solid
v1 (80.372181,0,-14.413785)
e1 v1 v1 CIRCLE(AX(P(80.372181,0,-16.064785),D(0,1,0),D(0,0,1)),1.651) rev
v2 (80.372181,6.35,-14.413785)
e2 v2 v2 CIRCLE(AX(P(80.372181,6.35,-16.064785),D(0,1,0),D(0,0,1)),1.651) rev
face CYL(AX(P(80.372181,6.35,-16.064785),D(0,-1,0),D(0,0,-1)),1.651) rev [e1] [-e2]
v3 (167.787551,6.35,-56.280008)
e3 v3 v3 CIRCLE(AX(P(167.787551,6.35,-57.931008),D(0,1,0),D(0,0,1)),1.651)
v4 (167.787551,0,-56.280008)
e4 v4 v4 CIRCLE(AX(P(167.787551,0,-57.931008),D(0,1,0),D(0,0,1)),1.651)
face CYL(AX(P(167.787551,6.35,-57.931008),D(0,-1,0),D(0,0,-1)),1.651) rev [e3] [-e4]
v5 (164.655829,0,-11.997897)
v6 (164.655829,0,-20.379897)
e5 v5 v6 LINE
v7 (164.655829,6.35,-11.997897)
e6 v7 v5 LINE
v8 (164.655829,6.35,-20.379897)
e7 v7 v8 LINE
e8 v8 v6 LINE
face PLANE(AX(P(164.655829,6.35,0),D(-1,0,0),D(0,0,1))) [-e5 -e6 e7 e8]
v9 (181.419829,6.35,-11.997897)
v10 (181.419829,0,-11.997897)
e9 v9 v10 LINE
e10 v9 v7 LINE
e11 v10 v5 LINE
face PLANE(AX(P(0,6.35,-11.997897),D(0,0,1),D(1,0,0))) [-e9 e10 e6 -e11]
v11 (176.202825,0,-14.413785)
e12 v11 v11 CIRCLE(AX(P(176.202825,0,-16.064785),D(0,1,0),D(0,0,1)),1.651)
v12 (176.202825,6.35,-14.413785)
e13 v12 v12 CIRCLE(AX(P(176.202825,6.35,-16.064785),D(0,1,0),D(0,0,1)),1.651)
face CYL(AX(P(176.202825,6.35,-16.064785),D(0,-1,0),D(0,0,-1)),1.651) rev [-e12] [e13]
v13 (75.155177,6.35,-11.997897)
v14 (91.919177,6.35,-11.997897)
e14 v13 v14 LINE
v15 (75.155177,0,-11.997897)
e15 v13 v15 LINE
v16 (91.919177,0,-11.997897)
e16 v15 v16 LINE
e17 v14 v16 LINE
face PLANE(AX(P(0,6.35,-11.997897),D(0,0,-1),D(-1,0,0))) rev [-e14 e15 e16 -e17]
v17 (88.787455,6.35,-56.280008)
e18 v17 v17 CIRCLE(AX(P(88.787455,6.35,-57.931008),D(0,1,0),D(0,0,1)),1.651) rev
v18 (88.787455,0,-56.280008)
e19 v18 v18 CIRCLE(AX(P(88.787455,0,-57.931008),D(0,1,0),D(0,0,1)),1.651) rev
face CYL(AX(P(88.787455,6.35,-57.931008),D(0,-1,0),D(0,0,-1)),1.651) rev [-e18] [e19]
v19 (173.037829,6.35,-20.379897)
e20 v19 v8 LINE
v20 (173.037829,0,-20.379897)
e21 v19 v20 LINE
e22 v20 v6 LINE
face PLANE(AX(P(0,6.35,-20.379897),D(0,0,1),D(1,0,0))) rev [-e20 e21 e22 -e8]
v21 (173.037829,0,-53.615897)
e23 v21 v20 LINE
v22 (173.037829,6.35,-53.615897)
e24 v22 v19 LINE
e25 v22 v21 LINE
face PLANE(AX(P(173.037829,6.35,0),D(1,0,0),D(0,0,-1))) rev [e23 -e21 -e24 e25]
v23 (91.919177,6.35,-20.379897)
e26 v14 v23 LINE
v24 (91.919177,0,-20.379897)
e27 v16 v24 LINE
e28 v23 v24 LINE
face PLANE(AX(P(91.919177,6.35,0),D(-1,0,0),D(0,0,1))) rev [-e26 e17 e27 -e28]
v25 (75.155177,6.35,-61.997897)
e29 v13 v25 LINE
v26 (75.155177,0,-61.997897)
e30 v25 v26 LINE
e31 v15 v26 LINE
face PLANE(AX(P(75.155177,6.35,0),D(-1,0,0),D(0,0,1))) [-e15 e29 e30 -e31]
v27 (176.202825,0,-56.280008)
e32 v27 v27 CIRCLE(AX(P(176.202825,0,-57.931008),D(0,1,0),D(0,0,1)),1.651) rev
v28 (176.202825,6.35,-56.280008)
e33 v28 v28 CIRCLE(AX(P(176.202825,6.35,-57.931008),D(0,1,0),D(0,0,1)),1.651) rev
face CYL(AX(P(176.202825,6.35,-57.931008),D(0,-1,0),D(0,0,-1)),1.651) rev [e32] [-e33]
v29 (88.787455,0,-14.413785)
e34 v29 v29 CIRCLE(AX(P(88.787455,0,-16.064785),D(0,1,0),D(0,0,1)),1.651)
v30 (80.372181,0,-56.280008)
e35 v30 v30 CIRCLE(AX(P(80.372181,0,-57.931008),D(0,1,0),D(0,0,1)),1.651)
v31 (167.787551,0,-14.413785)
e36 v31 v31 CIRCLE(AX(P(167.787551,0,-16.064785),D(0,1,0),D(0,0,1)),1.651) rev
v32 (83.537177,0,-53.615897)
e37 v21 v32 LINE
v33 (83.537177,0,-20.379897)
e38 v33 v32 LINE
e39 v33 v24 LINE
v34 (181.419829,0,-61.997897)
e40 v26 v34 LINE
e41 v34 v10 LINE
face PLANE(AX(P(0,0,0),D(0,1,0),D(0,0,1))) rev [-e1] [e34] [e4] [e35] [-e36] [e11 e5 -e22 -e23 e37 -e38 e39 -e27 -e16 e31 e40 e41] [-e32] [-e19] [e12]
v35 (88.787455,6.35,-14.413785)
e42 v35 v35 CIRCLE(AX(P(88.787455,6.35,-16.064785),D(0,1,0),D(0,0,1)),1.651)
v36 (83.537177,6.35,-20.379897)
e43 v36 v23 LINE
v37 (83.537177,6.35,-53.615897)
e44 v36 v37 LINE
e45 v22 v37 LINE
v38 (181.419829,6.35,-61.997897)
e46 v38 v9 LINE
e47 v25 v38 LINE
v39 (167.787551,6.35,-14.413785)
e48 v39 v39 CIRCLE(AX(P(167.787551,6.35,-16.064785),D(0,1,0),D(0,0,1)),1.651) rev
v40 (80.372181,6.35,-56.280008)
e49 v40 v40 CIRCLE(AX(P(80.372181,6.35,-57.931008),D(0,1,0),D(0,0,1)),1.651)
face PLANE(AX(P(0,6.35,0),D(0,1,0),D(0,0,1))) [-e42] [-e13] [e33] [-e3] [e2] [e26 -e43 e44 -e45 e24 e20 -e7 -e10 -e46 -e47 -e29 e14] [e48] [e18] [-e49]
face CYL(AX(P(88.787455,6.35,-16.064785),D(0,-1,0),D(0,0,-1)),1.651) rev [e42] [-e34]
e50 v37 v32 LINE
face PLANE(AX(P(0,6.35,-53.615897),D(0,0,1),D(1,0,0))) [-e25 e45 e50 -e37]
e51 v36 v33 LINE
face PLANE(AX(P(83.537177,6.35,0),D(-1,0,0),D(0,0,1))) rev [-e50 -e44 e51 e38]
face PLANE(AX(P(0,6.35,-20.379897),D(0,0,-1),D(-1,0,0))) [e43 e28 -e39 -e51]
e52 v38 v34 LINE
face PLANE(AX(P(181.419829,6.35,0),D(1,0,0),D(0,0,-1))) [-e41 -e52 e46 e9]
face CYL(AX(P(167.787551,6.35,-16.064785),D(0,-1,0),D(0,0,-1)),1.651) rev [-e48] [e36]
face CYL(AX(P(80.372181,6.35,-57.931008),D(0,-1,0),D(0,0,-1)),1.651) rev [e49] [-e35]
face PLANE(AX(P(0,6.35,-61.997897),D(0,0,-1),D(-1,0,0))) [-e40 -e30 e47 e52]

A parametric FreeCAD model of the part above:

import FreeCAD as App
import Part
import Sketcher
from FreeCAD import Vector
Q = App.Units.Quantity


def add_polygon(sketch, points):
    """Adds a closed chain of lines whose ends are joined by coincident constraints."""
    first, n = sketch.GeometryCount, len(points)
    for a, b in zip(points, points[1:] + points[:1]):
        sketch.addGeometry(Part.LineSegment(App.Vector(*a, 0), App.Vector(*b, 0)), False)
    for i in range(n):
        sketch.addConstraint(Sketcher.Constraint("Coincident", first + i, 2, first + (i + 1) % n, 1))

doc = App.newDocument("Part")
params = doc.addObject("Spreadsheet::Sheet", "Params")
for row, (alias, value) in enumerate([
    ("sketch1_diameter", "0.13 in"),
    ("sketch1_width", "0.66 in"),
    ("sketch1_width2", "0.33 in"),
    ("pad1_length", "0.25 in"),
], start=1):
    params.set(f"A{row}", alias)
    params.set(f"B{row}", "=" + value)
    params.setAlias(f"B{row}", alias)

body = doc.addObject("PartDesign::Body", "Body")

# Sketch on XZ plane
sketch1 = body.newObject("Sketcher::SketchObject", "Sketch")
sketch1.AttachmentSupport = (doc.getObject("XZ_Plane"), [""])
sketch1.MapMode = "FlatFace"
add_polygon(sketch1, [(75.2, -62), (75.2, -12), (91.9, -12), (91.9, -20.4), (83.5, -20.4), (83.5, -53.6), (173, -53.6), (173, -20.4), (164.7, -20.4), (164.7, -12), (181.4, -12), (181.4, -62)])  # lines 0-11
sketch1.addGeometry(Part.Circle(Vector(80.4, -16.1, 0), Vector(0, 0, 1), 1.7), False)  # 12
sketch1.addGeometry(Part.Circle(Vector(88.8, -16.1, 0), Vector(0, 0, 1), 1.7), False)  # 13
sketch1.addGeometry(Part.Circle(Vector(167.8, -16.1, 0), Vector(0, 0, 1), 1.7), False)  # 14
sketch1.addGeometry(Part.Circle(Vector(176.2, -16.1, 0), Vector(0, 0, 1), 1.7), False)  # 15
sketch1.addGeometry(Part.Circle(Vector(80.4, -57.9, 0), Vector(0, 0, 1), 1.7), False)  # 16
sketch1.addGeometry(Part.Circle(Vector(88.8, -57.9, 0), Vector(0, 0, 1), 1.7), False)  # 17
sketch1.addGeometry(Part.Circle(Vector(167.8, -57.9, 0), Vector(0, 0, 1), 1.7), False)  # 18
sketch1.addGeometry(Part.Circle(Vector(176.2, -57.9, 0), Vector(0, 0, 1), 1.7), False)  # 19
sketch1.addConstraint([
    Sketcher.Constraint("Vertical", 0),
    Sketcher.Constraint("Horizontal", 1),
    Sketcher.Constraint("Vertical", 2),
    Sketcher.Constraint("Horizontal", 3),
    Sketcher.Constraint("Vertical", 4),
    Sketcher.Constraint("Horizontal", 5),
    Sketcher.Constraint("Vertical", 6),
    Sketcher.Constraint("Horizontal", 7),
    Sketcher.Constraint("Vertical", 8),
    Sketcher.Constraint("Horizontal", 9),
    Sketcher.Constraint("Vertical", 10),
    Sketcher.Constraint("Horizontal", 11),
    Sketcher.Constraint("Equal", 12, 13),
    Sketcher.Constraint("Equal", 13, 14),
    Sketcher.Constraint("Equal", 14, 15),
    Sketcher.Constraint("Equal", 15, 16),
    Sketcher.Constraint("Equal", 16, 17),
    Sketcher.Constraint("Equal", 17, 18),
    Sketcher.Constraint("Equal", 18, 19),
    Sketcher.Constraint("Horizontal", 12, 3, 13, 3),
    Sketcher.Constraint("Horizontal", 13, 3, 14, 3),
    Sketcher.Constraint("Horizontal", 14, 3, 15, 3),
    Sketcher.Constraint("Horizontal", 16, 3, 17, 3),
    Sketcher.Constraint("Horizontal", 17, 3, 18, 3),
    Sketcher.Constraint("Horizontal", 18, 3, 19, 3),
    Sketcher.Constraint("Horizontal", 3, 2, 6, 2),
    Sketcher.Constraint("Horizontal", 1, 2, 8, 2),
    Sketcher.Constraint("Vertical", 12, 3, 16, 3),
    Sketcher.Constraint("Vertical", 13, 3, 17, 3),
    Sketcher.Constraint("Vertical", 14, 3, 18, 3),
    Sketcher.Constraint("Vertical", 15, 3, 19, 3),
    Sketcher.Constraint("Equal", 3, 7),
    Sketcher.Constraint("Equal", 1, 9),
    Sketcher.Constraint("Equal", 7, 2),
    Sketcher.Constraint("Diameter", 12, Q("0.13 in")),
    Sketcher.Constraint("DistanceX", 1, 1, 1, 2, Q("0.66 in")),
    Sketcher.Constraint("DistanceX", 3, 2, 3, 1, Q("0.33 in")),
    Sketcher.Constraint("DistanceY", 10, 2, 5, 2, Q("0.33 in")),
    Sketcher.Constraint("DistanceY", 0, 1, 0, 2, Q("50 mm")),
    Sketcher.Constraint("DistanceX", 5, 1, 5, 2, Q("89.500652 mm")),
    Sketcher.Constraint("DistanceX", -1, 1, 12, 3, Q("80.372181 mm")),
    Sketcher.Constraint("DistanceX", -1, 1, 14, 3, Q("167.787551 mm")),
    Sketcher.Constraint("DistanceY", 16, 3, -1, 1, Q("57.931008 mm")),
    Sketcher.Constraint("DistanceX", -1, 1, 5, 2, Q("173.037829 mm")),
    Sketcher.Constraint("DistanceX", 13, 3, 15, 3, Q("87.41537 mm")),
    Sketcher.Constraint("DistanceY", 12, 3, 0, 2, Q("4.066888 mm")),
    Sketcher.Constraint("DistanceX", 0, 2, 13, 3, Q("13.632278 mm")),
    Sketcher.Constraint("DistanceY", 16, 3, 0, 2, Q("45.933112 mm")),
])
sketch1.setExpression("Constraints[46]", "Params.sketch1_diameter")
sketch1.setExpression("Constraints[47]", "Params.sketch1_width")
sketch1.setExpression("Constraints[48]", "Params.sketch1_width2")
pad1 = body.newObject("PartDesign::Pad", "Pad")
pad1.Profile = sketch1
pad1.setExpression("Length", "Params.pad1_length")
pad1.Reversed = True

doc.recompute()
